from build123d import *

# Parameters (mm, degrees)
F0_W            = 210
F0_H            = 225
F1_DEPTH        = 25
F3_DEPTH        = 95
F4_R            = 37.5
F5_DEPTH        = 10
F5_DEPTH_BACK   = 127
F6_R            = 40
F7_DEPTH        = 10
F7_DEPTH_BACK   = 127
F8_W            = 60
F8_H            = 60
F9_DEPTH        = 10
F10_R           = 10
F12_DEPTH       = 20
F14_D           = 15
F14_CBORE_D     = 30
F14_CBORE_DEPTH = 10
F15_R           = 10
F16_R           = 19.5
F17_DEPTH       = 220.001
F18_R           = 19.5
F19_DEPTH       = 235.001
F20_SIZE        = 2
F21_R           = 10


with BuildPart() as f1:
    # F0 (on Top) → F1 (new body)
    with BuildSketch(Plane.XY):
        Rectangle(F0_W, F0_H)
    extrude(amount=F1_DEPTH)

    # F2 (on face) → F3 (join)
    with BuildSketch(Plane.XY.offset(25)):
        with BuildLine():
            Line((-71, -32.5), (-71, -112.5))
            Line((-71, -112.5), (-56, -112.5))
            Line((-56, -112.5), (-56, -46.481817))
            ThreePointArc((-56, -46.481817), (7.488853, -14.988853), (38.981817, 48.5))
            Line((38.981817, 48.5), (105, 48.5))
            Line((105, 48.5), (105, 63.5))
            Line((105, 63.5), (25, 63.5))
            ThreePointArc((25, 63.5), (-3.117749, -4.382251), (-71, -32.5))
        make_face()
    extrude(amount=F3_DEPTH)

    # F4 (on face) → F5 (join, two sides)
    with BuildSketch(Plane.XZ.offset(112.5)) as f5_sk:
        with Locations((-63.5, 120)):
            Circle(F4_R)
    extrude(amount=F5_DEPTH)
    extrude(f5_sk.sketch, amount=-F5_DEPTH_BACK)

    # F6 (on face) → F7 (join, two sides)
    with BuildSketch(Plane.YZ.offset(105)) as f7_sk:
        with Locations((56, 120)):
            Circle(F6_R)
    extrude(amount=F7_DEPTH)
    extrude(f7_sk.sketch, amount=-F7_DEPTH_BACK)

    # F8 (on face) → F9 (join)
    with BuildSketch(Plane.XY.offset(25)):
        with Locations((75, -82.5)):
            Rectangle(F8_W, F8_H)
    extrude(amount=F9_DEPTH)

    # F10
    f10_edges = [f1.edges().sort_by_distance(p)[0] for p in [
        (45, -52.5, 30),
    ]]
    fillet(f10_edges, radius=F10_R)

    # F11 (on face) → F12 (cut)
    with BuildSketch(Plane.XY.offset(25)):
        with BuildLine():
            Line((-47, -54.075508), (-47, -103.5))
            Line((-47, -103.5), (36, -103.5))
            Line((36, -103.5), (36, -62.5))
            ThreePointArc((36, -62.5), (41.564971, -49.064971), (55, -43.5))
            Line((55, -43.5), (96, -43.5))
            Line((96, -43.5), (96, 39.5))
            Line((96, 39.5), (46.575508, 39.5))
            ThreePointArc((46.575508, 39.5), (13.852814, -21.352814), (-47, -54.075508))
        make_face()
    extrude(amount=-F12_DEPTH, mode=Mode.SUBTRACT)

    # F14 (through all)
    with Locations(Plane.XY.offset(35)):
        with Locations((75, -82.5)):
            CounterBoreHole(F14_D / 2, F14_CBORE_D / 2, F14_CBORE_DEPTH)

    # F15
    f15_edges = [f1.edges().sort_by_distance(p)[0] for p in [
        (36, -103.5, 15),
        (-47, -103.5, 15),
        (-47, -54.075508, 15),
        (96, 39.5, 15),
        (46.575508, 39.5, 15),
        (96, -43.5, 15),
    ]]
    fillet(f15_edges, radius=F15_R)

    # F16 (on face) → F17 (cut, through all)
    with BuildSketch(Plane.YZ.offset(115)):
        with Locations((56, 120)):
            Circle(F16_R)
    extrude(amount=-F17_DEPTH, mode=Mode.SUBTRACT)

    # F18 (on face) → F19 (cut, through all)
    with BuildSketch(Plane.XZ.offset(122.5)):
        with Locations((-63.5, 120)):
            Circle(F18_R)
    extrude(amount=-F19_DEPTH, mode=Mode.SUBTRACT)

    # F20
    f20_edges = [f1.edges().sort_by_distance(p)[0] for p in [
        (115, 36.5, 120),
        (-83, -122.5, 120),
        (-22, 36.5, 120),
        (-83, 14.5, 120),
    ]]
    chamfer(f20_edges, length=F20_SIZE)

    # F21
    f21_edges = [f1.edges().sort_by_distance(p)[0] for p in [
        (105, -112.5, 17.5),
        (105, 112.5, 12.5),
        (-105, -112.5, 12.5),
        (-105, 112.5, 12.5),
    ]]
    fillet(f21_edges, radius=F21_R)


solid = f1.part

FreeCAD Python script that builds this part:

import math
import FreeCAD as App
import Part
import Sketcher
Q = App.Units.Quantity


def edges_at(feature, points):
    """Names of the edges that pass closest to the given points."""
    edges = feature.Shape.Edges
    near = lambda p: min(range(len(edges)), key=lambda i: edges[i].distToShape(Part.Vertex(*p))[0])
    return sorted({f"Edge{near(p) + 1}" for p in points})

doc = App.newDocument("Part")
params = doc.addObject("Spreadsheet::Sheet", "Params")
for row, (alias, value) in enumerate([
    ("sketch1_width", "210 mm"),
    ("sketch1_height", "225 mm"),
    ("pad1_length", "25 mm"),
    ("sketch2_radius", "111 mm"),
    ("sketch2_radius2", "96 mm"),
    ("sketch2_width", "15 mm"),
    ("sketch2_width2", "80 mm"),
    ("pad2_length", "95 mm"),
    ("sketch3_diameter", "75 mm"),
    ("pad3_length", "10 mm"),
    ("pad3_length2", "127 mm"),
    ("sketch4_diameter", "80 mm"),
    ("pad4_length", "10 mm"),
    ("pad4_length2", "127 mm"),
    ("sketch5_width", "60 mm"),
    ("pad5_length", "10 mm"),
    ("fillet_radius", "10 mm"),
    ("sketch6_radius", "18.999999 mm"),
    ("sketch6_radius2", "120 mm"),
    ("sketch6_width", "83 mm"),
    ("sketch6_width2", "41 mm"),
    ("pocket1_length", "20 mm"),
    ("sketch7_diameter", "15 mm"),
    ("hole_diameter", "15 mm"),
    ("hole_cbore_diameter", "30 mm"),
    ("hole_cbore_depth", "10 mm"),
    ("fillet2_radius", "10 mm"),
    ("sketch8_diameter", "39 mm"),
    ("sketch9_diameter", "39 mm"),
    ("chamfer_size", "2 mm"),
    ("fillet3_radius", "10 mm"),
], start=1):
    params.set(f"A{row}", alias)
    params.set(f"B{row}", "=" + value)
    params.setAlias(f"B{row}", alias)

body = doc.addObject("PartDesign::Body", "Body")

# Sketch on XY plane
sketch1 = doc.addObject("Sketcher::SketchObject", "Sketch")
body.addObject(sketch1)
sketch1.AttachmentSupport = (doc.XY_Plane, [""])
sketch1.MapMode = "FlatFace"
sketch1.addGeometry(Part.LineSegment(App.Vector(-105, 112, 0), App.Vector(-105, -112, 0)), False)
sketch1.addGeometry(Part.LineSegment(App.Vector(-105, -112, 0), App.Vector(105, -112, 0)), False)
sketch1.addGeometry(Part.LineSegment(App.Vector(105, -112, 0), App.Vector(105, 112, 0)), False)
sketch1.addGeometry(Part.LineSegment(App.Vector(105, 112, 0), App.Vector(-105, 112, 0)), False)
sketch1.addConstraint(Sketcher.Constraint("Coincident", 0, 2, 1, 1))
sketch1.addConstraint(Sketcher.Constraint("Coincident", 1, 2, 2, 1))
sketch1.addConstraint(Sketcher.Constraint("Coincident", 2, 2, 3, 1))
sketch1.addConstraint(Sketcher.Constraint("Coincident", 3, 2, 0, 1))
sketch1.addConstraint(Sketcher.Constraint("Vertical", 0))
sketch1.addConstraint(Sketcher.Constraint("Horizontal", 1))
sketch1.addConstraint(Sketcher.Constraint("Vertical", 2))
sketch1.addConstraint(Sketcher.Constraint("Horizontal", 3))
sketch1.addConstraint(Sketcher.Constraint("Symmetric", 0, 2, 2, 2, -1, 1))
sketch1.addConstraint(Sketcher.Constraint("DistanceX", 1, 1, 1, 2, Q("210 mm")))
sketch1.addConstraint(Sketcher.Constraint("DistanceY", 0, 2, 0, 1, Q("225 mm")))
sketch1.setExpression("Constraints[9]", "Params.sketch1_width")
sketch1.setExpression("Constraints[10]", "Params.sketch1_height")
pad1 = doc.addObject("PartDesign::Pad", "Pad")
body.addObject(pad1)
pad1.Profile = sketch1
pad1.setExpression("Length", "Params.pad1_length")

# Sketch on XY plane
sketch2 = doc.addObject("Sketcher::SketchObject", "Sketch001")
body.addObject(sketch2)
sketch2.AttachmentSupport = (doc.XY_Plane, [""])
sketch2.MapMode = "FlatFace"
sketch2.AttachmentOffset = App.Placement(App.Vector(0, 0, 25), App.Rotation())
sketch2.addGeometry(Part.LineSegment(App.Vector(-71, -32, 0), App.Vector(-71, -112, 0)), False)
sketch2.addGeometry(Part.LineSegment(App.Vector(-71, -112, 0), App.Vector(-56, -112, 0)), False)
sketch2.addGeometry(Part.LineSegment(App.Vector(-56, -112, 0), App.Vector(-56, -46, 0)), False)
sketch2.addGeometry(Part.ArcOfCircle(Part.Circle(App.Vector(-71, 63, 0), App.Vector(0, 0, 1), 111), math.radians(-82), math.radians(-8)), False)
sketch2.addGeometry(Part.LineSegment(App.Vector(39, 48, 0), App.Vector(105, 48, 0)), False)
sketch2.addGeometry(Part.LineSegment(App.Vector(105, 48, 0), App.Vector(105, 64, 0)), False)
sketch2.addGeometry(Part.LineSegment(App.Vector(105, 64, 0), App.Vector(25, 64, 0)), False)
sketch2.addGeometry(Part.ArcOfCircle(Part.Circle(App.Vector(-71, 63, 0), App.Vector(0, 0, 1), 96), math.radians(-90), math.radians(0)), False)
sketch2.addConstraint(Sketcher.Constraint("Coincident", 0, 2, 1, 1))
sketch2.addConstraint(Sketcher.Constraint("Coincident", 1, 2, 2, 1))
sketch2.addConstraint(Sketcher.Constraint("Coincident", 2, 2, 3, 1))
sketch2.addConstraint(Sketcher.Constraint("Coincident", 3, 2, 4, 1))
sketch2.addConstraint(Sketcher.Constraint("Coincident", 4, 2, 5, 1))
sketch2.addConstraint(Sketcher.Constraint("Coincident", 5, 2, 6, 1))
sketch2.addConstraint(Sketcher.Constraint("Coincident", 6, 2, 7, 2))
sketch2.addConstraint(Sketcher.Constraint("Coincident", 7, 1, 0, 1))
sketch2.addConstraint(Sketcher.Constraint("Vertical", 0))
sketch2.addConstraint(Sketcher.Constraint("Horizontal", 1))
sketch2.addConstraint(Sketcher.Constraint("Vertical", 2))
sketch2.addConstraint(Sketcher.Constraint("Horizontal", 4))
sketch2.addConstraint(Sketcher.Constraint("Vertical", 5))
sketch2.addConstraint(Sketcher.Constraint("Horizontal", 6))
sketch2.addConstraint(Sketcher.Constraint("Coincident", 7, 3, 3, 3))
sketch2.addConstraint(Sketcher.Constraint("Horizontal", 7, 3, 5, 2))
sketch2.addConstraint(Sketcher.Constraint("Vertical", 7, 3, 0, 2))
sketch2.addConstraint(Sketcher.Constraint("Equal", 6, 0))
sketch2.addConstraint(Sketcher.Constraint("Equal", 4, 2))
sketch2.addConstraint(Sketcher.Constraint("Radius", 3, Q("111 mm")))
sketch2.addConstraint(Sketcher.Constraint("Radius", 7, Q("96 mm")))
sketch2.addConstraint(Sketcher.Constraint("DistanceX", 1, 1, 1, 2, Q("15 mm")))
sketch2.addConstraint(Sketcher.Constraint("DistanceX", 6, 2, 6, 1, Q("80 mm")))
sketch2.addConstraint(Sketcher.Constraint("DistanceX", 3, 3, -1, 1, Q("71 mm")))
sketch2.addConstraint(Sketcher.Constraint("DistanceY", -1, 1, 3, 3, Q("63.5 mm")))
sketch2.setExpression("Constraints[19]", "Params.sketch2_radius")
sketch2.setExpression("Constraints[20]", "Params.sketch2_radius2")
sketch2.setExpression("Constraints[21]", "Params.sketch2_width")
sketch2.setExpression("Constraints[22]", "Params.sketch2_width2")
pad2 = doc.addObject("PartDesign::Pad", "Pad001")
body.addObject(pad2)
pad2.Profile = sketch2
pad2.setExpression("Length", "Params.pad2_length")

# Sketch on XZ plane
sketch3 = doc.addObject("Sketcher::SketchObject", "Sketch002")
body.addObject(sketch3)
sketch3.AttachmentSupport = (doc.XZ_Plane, [""])
sketch3.MapMode = "FlatFace"
sketch3.AttachmentOffset = App.Placement(App.Vector(0, 0, 112.5), App.Rotation())
sketch3.addGeometry(Part.Circle(App.Vector(-64, 120, 0), App.Vector(0, 0, 1), 38), False)
sketch3.addConstraint(Sketcher.Constraint("Diameter", 0, Q("75 mm")))
sketch3.addConstraint(Sketcher.Constraint("DistanceY", -1, 1, 0, 3, Q("120 mm")))
sketch3.addConstraint(Sketcher.Constraint("DistanceX", 0, 3, -1, 1, Q("63.5 mm")))
sketch3.setExpression("Constraints[0]", "Params.sketch3_diameter")
pad3 = doc.addObject("PartDesign::Pad", "Pad002")
body.addObject(pad3)
pad3.Profile = sketch3
pad3.Type = "TwoLengths"
pad3.setExpression("Length", "Params.pad3_length")
pad3.setExpression("Length2", "Params.pad3_length2")

# Sketch on YZ plane
sketch4 = doc.addObject("Sketcher::SketchObject", "Sketch003")
body.addObject(sketch4)
sketch4.AttachmentSupport = (doc.YZ_Plane, [""])
sketch4.MapMode = "FlatFace"
sketch4.AttachmentOffset = App.Placement(App.Vector(0, 0, 105), App.Rotation())
sketch4.addGeometry(Part.Circle(App.Vector(56, 120, 0), App.Vector(0, 0, 1), 40), False)
sketch4.addConstraint(Sketcher.Constraint("Diameter", 0, Q("80 mm")))
sketch4.addConstraint(Sketcher.Constraint("DistanceX", -1, 1, 0, 3, Q("56 mm")))
sketch4.addConstraint(Sketcher.Constraint("DistanceY", -1, 1, 0, 3, Q("120 mm")))
sketch4.setExpression("Constraints[0]", "Params.sketch4_diameter")
pad4 = doc.addObject("PartDesign::Pad", "Pad003")
body.addObject(pad4)
pad4.Profile = sketch4
pad4.Type = "TwoLengths"
pad4.setExpression("Length", "Params.pad4_length")
pad4.setExpression("Length2", "Params.pad4_length2")

# Sketch on XY plane
sketch5 = doc.addObject("Sketcher::SketchObject", "Sketch004")
body.addObject(sketch5)
sketch5.AttachmentSupport = (doc.XY_Plane, [""])
sketch5.MapMode = "FlatFace"
sketch5.AttachmentOffset = App.Placement(App.Vector(0, 0, 25), App.Rotation())
sketch5.addGeometry(Part.LineSegment(App.Vector(45, -52, 0), App.Vector(45, -112, 0)), False)
sketch5.addGeometry(Part.LineSegment(App.Vector(45, -112, 0), App.Vector(105, -112, 0)), False)
sketch5.addGeometry(Part.LineSegment(App.Vector(105, -112, 0), App.Vector(105, -52, 0)), False)
sketch5.addGeometry(Part.LineSegment(App.Vector(105, -52, 0), App.Vector(45, -52, 0)), False)
sketch5.addConstraint(Sketcher.Constraint("Coincident", 0, 2, 1, 1))
sketch5.addConstraint(Sketcher.Constraint("Coincident", 1, 2, 2, 1))
sketch5.addConstraint(Sketcher.Constraint("Coincident", 2, 2, 3, 1))
sketch5.addConstraint(Sketcher.Constraint("Coincident", 3, 2, 0, 1))
sketch5.addConstraint(Sketcher.Constraint("Vertical", 0))
sketch5.addConstraint(Sketcher.Constraint("Horizontal", 1))
sketch5.addConstraint(Sketcher.Constraint("Vertical", 2))
sketch5.addConstraint(Sketcher.Constraint("Horizontal", 3))
sketch5.addConstraint(Sketcher.Constraint("Equal", 3, 0))
sketch5.addConstraint(Sketcher.Constraint("DistanceX", 1, 1, 1, 2, Q("60 mm")))
sketch5.addConstraint(Sketcher.Constraint("DistanceX", -1, 1, 0, 2, Q("45 mm")))
sketch5.addConstraint(Sketcher.Constraint("DistanceY", 0, 2, -1, 1, Q("112.5 mm")))
sketch5.setExpression("Constraints[9]", "Params.sketch5_width")
pad5 = doc.addObject("PartDesign::Pad", "Pad004")
body.addObject(pad5)
pad5.Profile = sketch5
pad5.setExpression("Length", "Params.pad5_length")
doc.recompute()

fillet = doc.addObject("PartDesign::Fillet", "Fillet")
body.addObject(fillet)
fillet.Base = (pad5, edges_at(pad5, [(45, -52.5, 30)]))
fillet.setExpression("Radius", "Params.fillet_radius")

# Sketch on XY plane
sketch6 = doc.addObject("Sketcher::SketchObject", "Sketch005")
body.addObject(sketch6)
sketch6.AttachmentSupport = (doc.XY_Plane, [""])
sketch6.MapMode = "FlatFace"
sketch6.AttachmentOffset = App.Placement(App.Vector(0, 0, 25), App.Rotation())
sketch6.addGeometry(Part.LineSegment(App.Vector(-47, -54, 0), App.Vector(-47, -104, 0)), False)
sketch6.addGeometry(Part.LineSegment(App.Vector(-47, -104, 0), App.Vector(36, -104, 0)), False)
sketch6.addGeometry(Part.LineSegment(App.Vector(36, -104, 0), App.Vector(36, -62, 0)), False)
sketch6.addGeometry(Part.ArcOfCircle(Part.Circle(App.Vector(55, -62, 0), App.Vector(0, 0, 1), 19), math.radians(90), math.radians(180)), False)
sketch6.addGeometry(Part.LineSegment(App.Vector(55, -44, 0), App.Vector(96, -44, 0)), False)
sketch6.addGeometry(Part.LineSegment(App.Vector(96, -44, 0), App.Vector(96, 40, 0)), False)
sketch6.addGeometry(Part.LineSegment(App.Vector(96, 40, 0), App.Vector(47, 40, 0)), False)
sketch6.addGeometry(Part.ArcOfCircle(Part.Circle(App.Vector(-71, 63, 0), App.Vector(0, 0, 1), 120), math.radians(-78), math.radians(-12)), False)
sketch6.addConstraint(Sketcher.Constraint("Coincident", 0, 2, 1, 1))
sketch6.addConstraint(Sketcher.Constraint("Coincident", 1, 2, 2, 1))
sketch6.addConstraint(Sketcher.Constraint("Tangent", 2, 2, 3, 2))
sketch6.addConstraint(Sketcher.Constraint("Tangent", 3, 1, 4, 1))
sketch6.addConstraint(Sketcher.Constraint("Coincident", 4, 2, 5, 1))
sketch6.addConstraint(Sketcher.Constraint("Coincident", 5, 2, 6, 1))
sketch6.addConstraint(Sketcher.Constraint("Coincident", 6, 2, 7, 2))
sketch6.addConstraint(Sketcher.Constraint("Coincident", 7, 1, 0, 1))
sketch6.addConstraint(Sketcher.Constraint("Vertical", 0))
sketch6.addConstraint(Sketcher.Constraint("Horizontal", 1))
sketch6.addConstraint(Sketcher.Constraint("Vertical", 2))
sketch6.addConstraint(Sketcher.Constraint("Horizontal", 4))
sketch6.addConstraint(Sketcher.Constraint("Vertical", 5))
sketch6.addConstraint(Sketcher.Constraint("Horizontal", 6))
sketch6.addConstraint(Sketcher.Constraint("Equal", 6, 0))
sketch6.addConstraint(Sketcher.Constraint("Equal", 4, 2))
sketch6.addConstraint(Sketcher.Constraint("Equal", 1, 5))
sketch6.addConstraint(Sketcher.Constraint("Radius", 3, Q("18.999999 mm")))
sketch6.addConstraint(Sketcher.Constraint("Radius", 7, Q("120 mm")))
sketch6.addConstraint(Sketcher.Constraint("DistanceX", 1, 1, 1, 2, Q("83 mm")))
sketch6.addConstraint(Sketcher.Constraint("DistanceX", 4, 1, 4, 2, Q("41 mm")))
sketch6.addConstraint(Sketcher.Constraint("DistanceX", -1, 1, 3, 3, Q("54.999999 mm")))
sketch6.addConstraint(Sketcher.Constraint("DistanceX", 7, 3, -1, 1, Q("71 mm")))
sketch6.addConstraint(Sketcher.Constraint("DistanceY", 3, 3, -1, 1, Q("62.499999 mm")))
sketch6.setExpression("Constraints[17]", "Params.sketch6_radius")
sketch6.setExpression("Constraints[18]", "Params.sketch6_radius2")
sketch6.setExpression("Constraints[19]", "Params.sketch6_width")
sketch6.setExpression("Constraints[20]", "Params.sketch6_width2")
pocket1 = doc.addObject("PartDesign::Pocket", "Pocket")
body.addObject(pocket1)
pocket1.Profile = sketch6
pocket1.setExpression("Length", "Params.pocket1_length")

# Sketch on XY plane
sketch7 = doc.addObject("Sketcher::SketchObject", "Sketch006")
body.addObject(sketch7)
sketch7.AttachmentSupport = (doc.XY_Plane, [""])
sketch7.MapMode = "FlatFace"
sketch7.AttachmentOffset = App.Placement(App.Vector(0, 0, 35), App.Rotation())
sketch7.addGeometry(Part.Circle(App.Vector(75, -82, 0), App.Vector(0, 0, 1), 8), False)
sketch7.addConstraint(Sketcher.Constraint("Diameter", 0, Q("15 mm")))
sketch7.addConstraint(Sketcher.Constraint("DistanceX", -1, 1, 0, 3, Q("75 mm")))
sketch7.addConstraint(Sketcher.Constraint("DistanceY", 0, 3, -1, 1, Q("82.5 mm")))
sketch7.setExpression("Constraints[0]", "Params.sketch7_diameter")
doc.recompute()
hole = doc.addObject("PartDesign::Hole", "Hole")
body.addObject(hole)
hole.Profile = sketch7
hole.ThreadType = "None"
hole.setExpression("Diameter", "Params.hole_diameter")
hole.DepthType = "ThroughAll"
hole.HoleCutType = "Counterbore"
hole.setExpression("HoleCutDiameter", "Params.hole_cbore_diameter")
hole.setExpression("HoleCutDepth", "Params.hole_cbore_depth")
doc.recompute()

fillet2 = doc.addObject("PartDesign::Fillet", "Fillet001")
body.addObject(fillet2)
fillet2.Base = (hole, edges_at(hole, [
    (36, -103.5, 15),
    (-47, -103.5, 15),
    (-47, -54.076, 15),
    (96, 39.5, 15),
    (46.576, 39.5, 15),
    (96, -43.5, 15),
]))
fillet2.setExpression("Radius", "Params.fillet2_radius")

# Sketch on YZ plane
sketch8 = doc.addObject("Sketcher::SketchObject", "Sketch007")
body.addObject(sketch8)
sketch8.AttachmentSupport = (doc.YZ_Plane, [""])
sketch8.MapMode = "FlatFace"
sketch8.AttachmentOffset = App.Placement(App.Vector(0, 0, 115), App.Rotation())
sketch8.addGeometry(Part.Circle(App.Vector(56, 120, 0), App.Vector(0, 0, 1), 20), False)
sketch8.addConstraint(Sketcher.Constraint("Diameter", 0, Q("39 mm")))
sketch8.addConstraint(Sketcher.Constraint("DistanceX", -1, 1, 0, 3, Q("56 mm")))
sketch8.addConstraint(Sketcher.Constraint("DistanceY", -1, 1, 0, 3, Q("120 mm")))
sketch8.setExpression("Constraints[0]", "Params.sketch8_diameter")
pocket2 = doc.addObject("PartDesign::Pocket", "Pocket001")
body.addObject(pocket2)
pocket2.Profile = sketch8
pocket2.Type = "ThroughAll"

# Sketch on XZ plane
sketch9 = doc.addObject("Sketcher::SketchObject", "Sketch008")
body.addObject(sketch9)
sketch9.AttachmentSupport = (doc.XZ_Plane, [""])
sketch9.MapMode = "FlatFace"
sketch9.AttachmentOffset = App.Placement(App.Vector(0, 0, 122.5), App.Rotation())
sketch9.addGeometry(Part.Circle(App.Vector(-64, 120, 0), App.Vector(0, 0, 1), 20), False)
sketch9.addConstraint(Sketcher.Constraint("Diameter", 0, Q("39 mm")))
sketch9.addConstraint(Sketcher.Constraint("DistanceY", -1, 1, 0, 3, Q("120 mm")))
sketch9.addConstraint(Sketcher.Constraint("DistanceX", 0, 3, -1, 1, Q("63.5 mm")))
sketch9.setExpression("Constraints[0]", "Params.sketch9_diameter")
pocket3 = doc.addObject("PartDesign::Pocket", "Pocket002")
body.addObject(pocket3)
pocket3.Profile = sketch9
pocket3.Type = "ThroughAll"
doc.recompute()

chamfer = doc.addObject("PartDesign::Chamfer", "Chamfer")
body.addObject(chamfer)
chamfer.Base = (pocket3, edges_at(pocket3, [
    (115, 36.5, 120),
    (-83, -122.5, 120),
    (-22, 36.5, 120),
    (-83, 14.5, 120),
]))
chamfer.setExpression("Size", "Params.chamfer_size")
doc.recompute()

fillet3 = doc.addObject("PartDesign::Fillet", "Fillet002")
body.addObject(fillet3)
fillet3.Base = (chamfer, edges_at(chamfer, [
    (105, -112.5, 17.5),
    (105, 112.5, 12.5),
    (-105, -112.5, 12.5),
    (-105, 112.5, 12.5),
]))
fillet3.setExpression("Radius", "Params.fillet3_radius")

doc.recompute()
